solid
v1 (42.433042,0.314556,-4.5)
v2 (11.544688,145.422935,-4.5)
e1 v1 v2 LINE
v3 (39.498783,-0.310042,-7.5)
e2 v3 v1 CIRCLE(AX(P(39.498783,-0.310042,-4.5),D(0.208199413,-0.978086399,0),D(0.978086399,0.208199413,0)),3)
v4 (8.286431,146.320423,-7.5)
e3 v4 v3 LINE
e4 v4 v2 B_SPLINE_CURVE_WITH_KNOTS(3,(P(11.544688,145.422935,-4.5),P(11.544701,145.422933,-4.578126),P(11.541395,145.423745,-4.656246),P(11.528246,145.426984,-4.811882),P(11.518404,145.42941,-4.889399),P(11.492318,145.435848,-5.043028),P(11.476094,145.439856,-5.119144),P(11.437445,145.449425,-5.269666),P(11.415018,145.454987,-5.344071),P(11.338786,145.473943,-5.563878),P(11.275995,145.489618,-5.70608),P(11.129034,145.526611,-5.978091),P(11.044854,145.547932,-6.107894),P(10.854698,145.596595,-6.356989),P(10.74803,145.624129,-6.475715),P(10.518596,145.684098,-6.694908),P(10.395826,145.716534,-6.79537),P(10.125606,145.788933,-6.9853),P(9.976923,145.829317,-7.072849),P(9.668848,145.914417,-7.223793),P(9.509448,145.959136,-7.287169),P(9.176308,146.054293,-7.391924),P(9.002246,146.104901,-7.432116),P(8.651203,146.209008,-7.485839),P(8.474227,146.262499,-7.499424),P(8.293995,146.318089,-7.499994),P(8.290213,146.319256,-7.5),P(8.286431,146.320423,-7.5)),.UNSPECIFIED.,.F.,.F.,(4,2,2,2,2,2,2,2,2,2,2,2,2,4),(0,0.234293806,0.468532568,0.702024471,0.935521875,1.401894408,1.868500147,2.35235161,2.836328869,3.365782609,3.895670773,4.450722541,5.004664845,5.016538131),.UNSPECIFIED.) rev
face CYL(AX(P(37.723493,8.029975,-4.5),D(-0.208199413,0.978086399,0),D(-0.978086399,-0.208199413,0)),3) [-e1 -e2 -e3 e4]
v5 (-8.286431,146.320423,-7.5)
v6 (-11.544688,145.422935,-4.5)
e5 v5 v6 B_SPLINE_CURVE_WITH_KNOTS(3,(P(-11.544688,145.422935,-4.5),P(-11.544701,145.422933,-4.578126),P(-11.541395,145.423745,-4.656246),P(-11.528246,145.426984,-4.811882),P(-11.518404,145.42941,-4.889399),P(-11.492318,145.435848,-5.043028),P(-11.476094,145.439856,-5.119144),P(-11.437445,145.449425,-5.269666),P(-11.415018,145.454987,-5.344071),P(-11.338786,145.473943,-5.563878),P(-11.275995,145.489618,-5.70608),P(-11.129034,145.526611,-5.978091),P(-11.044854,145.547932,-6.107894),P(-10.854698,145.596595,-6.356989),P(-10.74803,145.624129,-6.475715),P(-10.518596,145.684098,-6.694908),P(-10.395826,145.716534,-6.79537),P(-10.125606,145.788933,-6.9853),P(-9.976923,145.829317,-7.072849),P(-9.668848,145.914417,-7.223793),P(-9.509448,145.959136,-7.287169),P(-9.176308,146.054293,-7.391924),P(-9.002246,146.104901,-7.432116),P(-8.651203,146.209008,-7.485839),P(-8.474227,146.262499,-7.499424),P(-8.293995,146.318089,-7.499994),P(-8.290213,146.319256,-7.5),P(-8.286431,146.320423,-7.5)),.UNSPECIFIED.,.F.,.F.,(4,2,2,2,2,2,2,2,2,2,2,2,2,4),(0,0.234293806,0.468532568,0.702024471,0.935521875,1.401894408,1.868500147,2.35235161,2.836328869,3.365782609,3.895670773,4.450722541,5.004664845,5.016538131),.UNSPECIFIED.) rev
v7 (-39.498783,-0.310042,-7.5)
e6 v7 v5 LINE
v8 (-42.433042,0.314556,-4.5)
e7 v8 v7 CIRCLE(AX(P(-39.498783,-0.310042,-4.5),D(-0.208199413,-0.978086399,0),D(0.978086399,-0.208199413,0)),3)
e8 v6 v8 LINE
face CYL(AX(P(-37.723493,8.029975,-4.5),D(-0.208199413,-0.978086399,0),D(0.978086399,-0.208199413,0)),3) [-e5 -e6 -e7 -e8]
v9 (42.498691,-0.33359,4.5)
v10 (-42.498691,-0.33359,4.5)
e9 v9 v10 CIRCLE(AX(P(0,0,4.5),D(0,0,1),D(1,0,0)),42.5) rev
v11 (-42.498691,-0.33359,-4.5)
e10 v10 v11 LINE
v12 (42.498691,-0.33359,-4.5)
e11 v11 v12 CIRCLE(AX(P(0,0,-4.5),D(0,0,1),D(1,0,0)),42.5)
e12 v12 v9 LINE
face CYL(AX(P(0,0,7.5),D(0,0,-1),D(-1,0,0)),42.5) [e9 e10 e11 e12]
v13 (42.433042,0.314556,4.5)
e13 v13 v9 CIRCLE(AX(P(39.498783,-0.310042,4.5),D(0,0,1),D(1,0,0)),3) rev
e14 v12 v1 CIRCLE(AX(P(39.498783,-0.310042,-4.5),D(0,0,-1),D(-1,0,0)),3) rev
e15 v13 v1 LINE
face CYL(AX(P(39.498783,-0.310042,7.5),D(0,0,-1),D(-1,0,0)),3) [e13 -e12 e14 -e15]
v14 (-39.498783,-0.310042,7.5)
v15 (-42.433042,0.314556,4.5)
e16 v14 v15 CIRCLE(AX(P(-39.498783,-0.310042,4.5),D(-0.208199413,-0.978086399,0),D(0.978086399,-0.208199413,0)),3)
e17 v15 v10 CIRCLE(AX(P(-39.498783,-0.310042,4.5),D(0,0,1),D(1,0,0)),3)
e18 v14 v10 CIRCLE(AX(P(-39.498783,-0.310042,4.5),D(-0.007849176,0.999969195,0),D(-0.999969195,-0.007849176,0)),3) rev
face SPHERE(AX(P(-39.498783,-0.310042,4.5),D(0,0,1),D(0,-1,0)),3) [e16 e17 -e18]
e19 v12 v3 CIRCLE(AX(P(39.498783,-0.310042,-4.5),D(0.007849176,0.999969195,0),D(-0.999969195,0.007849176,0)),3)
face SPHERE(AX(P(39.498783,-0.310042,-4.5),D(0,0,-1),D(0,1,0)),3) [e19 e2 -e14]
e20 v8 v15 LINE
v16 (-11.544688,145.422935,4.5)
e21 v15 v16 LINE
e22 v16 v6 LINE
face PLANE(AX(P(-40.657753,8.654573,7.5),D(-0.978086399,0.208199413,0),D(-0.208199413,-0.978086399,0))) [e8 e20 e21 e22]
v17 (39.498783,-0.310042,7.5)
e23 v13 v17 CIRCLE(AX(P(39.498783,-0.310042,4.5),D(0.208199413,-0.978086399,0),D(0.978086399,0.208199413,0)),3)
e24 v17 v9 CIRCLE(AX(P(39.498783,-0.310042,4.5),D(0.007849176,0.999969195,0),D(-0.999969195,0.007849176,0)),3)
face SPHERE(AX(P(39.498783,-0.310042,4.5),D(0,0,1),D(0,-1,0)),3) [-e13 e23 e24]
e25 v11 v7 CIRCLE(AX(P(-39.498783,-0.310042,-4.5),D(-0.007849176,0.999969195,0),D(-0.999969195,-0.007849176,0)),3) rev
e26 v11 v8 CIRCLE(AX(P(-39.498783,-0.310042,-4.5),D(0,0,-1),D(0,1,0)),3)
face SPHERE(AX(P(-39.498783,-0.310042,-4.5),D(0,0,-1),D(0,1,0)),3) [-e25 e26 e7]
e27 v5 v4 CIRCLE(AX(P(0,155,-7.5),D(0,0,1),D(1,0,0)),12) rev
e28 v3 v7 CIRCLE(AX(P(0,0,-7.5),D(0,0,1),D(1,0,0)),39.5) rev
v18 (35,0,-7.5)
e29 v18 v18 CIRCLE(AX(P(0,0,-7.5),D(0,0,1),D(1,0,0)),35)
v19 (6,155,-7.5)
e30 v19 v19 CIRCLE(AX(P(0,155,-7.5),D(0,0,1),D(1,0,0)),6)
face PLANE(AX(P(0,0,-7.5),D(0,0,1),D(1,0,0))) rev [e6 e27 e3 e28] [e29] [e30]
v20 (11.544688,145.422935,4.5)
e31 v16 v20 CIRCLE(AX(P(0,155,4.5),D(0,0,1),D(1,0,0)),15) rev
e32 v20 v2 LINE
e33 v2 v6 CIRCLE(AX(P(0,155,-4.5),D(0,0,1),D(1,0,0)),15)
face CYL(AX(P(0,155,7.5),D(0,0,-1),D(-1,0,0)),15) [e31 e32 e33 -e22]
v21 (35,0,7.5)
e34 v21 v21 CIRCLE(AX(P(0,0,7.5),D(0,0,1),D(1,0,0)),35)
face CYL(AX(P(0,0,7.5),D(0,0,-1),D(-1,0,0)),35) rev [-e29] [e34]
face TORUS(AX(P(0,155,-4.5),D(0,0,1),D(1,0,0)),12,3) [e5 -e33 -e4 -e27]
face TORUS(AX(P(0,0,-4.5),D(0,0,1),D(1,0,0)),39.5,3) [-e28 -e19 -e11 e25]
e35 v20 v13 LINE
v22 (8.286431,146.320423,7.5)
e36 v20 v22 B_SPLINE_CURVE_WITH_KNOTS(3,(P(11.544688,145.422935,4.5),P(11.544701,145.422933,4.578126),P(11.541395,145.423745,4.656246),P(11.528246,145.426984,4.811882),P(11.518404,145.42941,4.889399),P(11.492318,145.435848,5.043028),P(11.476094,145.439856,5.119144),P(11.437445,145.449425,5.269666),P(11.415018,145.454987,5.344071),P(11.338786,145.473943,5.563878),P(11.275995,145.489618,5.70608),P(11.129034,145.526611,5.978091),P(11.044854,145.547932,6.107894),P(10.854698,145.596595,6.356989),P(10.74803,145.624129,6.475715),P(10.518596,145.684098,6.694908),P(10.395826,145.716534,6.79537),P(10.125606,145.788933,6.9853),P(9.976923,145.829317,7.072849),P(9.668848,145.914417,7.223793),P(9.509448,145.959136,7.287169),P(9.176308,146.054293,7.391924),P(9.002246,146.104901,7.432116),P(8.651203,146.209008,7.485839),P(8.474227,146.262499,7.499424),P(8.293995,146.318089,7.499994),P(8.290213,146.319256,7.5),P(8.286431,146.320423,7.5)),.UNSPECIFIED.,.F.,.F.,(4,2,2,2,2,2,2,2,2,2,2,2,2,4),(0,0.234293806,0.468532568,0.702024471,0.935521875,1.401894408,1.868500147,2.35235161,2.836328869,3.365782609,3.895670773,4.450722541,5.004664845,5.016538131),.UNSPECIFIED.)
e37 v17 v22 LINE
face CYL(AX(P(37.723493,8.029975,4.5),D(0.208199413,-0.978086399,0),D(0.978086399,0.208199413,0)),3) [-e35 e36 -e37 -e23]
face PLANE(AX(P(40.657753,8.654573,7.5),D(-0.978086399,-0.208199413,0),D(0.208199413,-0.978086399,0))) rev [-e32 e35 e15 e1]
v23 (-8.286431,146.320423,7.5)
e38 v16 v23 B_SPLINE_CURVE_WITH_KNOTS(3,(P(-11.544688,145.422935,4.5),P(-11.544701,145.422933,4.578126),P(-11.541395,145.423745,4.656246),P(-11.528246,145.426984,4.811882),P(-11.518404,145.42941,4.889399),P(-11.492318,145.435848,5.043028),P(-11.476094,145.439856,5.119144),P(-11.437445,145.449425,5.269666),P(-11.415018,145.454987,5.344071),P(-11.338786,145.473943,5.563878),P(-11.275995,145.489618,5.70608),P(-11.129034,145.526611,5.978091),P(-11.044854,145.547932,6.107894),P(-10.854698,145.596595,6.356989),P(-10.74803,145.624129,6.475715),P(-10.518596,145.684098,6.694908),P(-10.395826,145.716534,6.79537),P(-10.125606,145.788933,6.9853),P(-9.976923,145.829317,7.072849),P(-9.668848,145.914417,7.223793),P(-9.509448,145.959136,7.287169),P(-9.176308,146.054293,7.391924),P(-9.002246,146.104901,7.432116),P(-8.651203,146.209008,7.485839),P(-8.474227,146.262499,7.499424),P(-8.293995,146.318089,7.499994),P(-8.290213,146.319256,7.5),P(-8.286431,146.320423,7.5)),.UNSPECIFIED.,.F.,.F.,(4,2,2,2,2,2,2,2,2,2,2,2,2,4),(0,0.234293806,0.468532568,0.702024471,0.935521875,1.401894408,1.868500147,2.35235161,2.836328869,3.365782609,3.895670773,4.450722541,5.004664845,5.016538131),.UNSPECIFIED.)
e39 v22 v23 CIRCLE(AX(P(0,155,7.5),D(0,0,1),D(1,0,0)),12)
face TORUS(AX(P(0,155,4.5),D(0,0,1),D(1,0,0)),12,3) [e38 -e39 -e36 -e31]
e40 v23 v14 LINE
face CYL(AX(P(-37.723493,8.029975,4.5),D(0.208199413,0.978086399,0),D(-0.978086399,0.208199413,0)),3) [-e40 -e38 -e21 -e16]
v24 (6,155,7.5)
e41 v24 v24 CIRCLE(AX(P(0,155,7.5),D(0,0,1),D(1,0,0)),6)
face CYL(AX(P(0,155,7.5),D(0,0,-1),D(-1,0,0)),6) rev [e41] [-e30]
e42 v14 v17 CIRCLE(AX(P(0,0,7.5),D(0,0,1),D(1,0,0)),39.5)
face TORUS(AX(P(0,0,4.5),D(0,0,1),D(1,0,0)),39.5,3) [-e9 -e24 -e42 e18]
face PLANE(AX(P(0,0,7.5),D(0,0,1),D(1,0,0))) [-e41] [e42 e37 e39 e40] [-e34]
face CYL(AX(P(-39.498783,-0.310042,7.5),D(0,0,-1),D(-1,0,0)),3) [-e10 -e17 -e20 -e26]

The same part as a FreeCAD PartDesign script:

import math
import FreeCAD as App
import Part
import Sketcher
Q = App.Units.Quantity


def edges_at(feature, points):
    """Names of the edges that pass closest to the given points."""
    edges = feature.Shape.Edges
    near = lambda p: min(range(len(edges)), key=lambda i: edges[i].distToShape(Part.Vertex(*p))[0])
    return sorted({f"Edge{near(p) + 1}" for p in points})

doc = App.newDocument("Part")
body = doc.addObject("PartDesign::Body", "Body")

sketch1 = body.newObject("Sketcher::SketchObject", "Sketch")
sketch1.AttachmentSupport = (doc.getObject("XY_Plane"), [""])
sketch1.MapMode = "FlatFace"
sketch1.addGeometry(Part.LineSegment(App.Vector(-12, 145, 0), App.Vector(-42, 0, 0)), False)
sketch1.addGeometry(Part.ArcOfCircle(Part.Circle(App.Vector(0, 0, 0), App.Vector(0, 0, 1), 42), math.radians(180), math.radians(360)), False)
sketch1.addGeometry(Part.LineSegment(App.Vector(42, 0, 0), App.Vector(12, 145, 0)), False)
sketch1.addGeometry(Part.ArcOfCircle(Part.Circle(App.Vector(0, 155, 0), App.Vector(0, 0, 1), 15), math.radians(-40), math.radians(220)), False)
sketch1.addGeometry(Part.Circle(App.Vector(0, 0, 0), App.Vector(0, 0, 1), 35), False)
sketch1.addGeometry(Part.Circle(App.Vector(0, 155, 0), App.Vector(0, 0, 1), 6), False)
sketch1.addConstraint(Sketcher.Constraint("Coincident", 0, 2, 1, 1))
sketch1.addConstraint(Sketcher.Constraint("Coincident", 1, 2, 2, 1))
sketch1.addConstraint(Sketcher.Constraint("Coincident", 2, 2, 3, 1))
sketch1.addConstraint(Sketcher.Constraint("Coincident", 3, 2, 0, 1))
sketch1.addConstraint(Sketcher.Constraint("Coincident", 1, 3, -1, 1))
sketch1.addConstraint(Sketcher.Constraint("Coincident", 4, 3, -1, 1))
sketch1.addConstraint(Sketcher.Constraint("Coincident", 5, 3, 3, 3))
sketch1.addConstraint(Sketcher.Constraint("Symmetric", 2, 2, 3, 2, -2))
sketch1.addConstraint(Sketcher.Constraint("PointOnObject", 0, 2, -1))
sketch1.addConstraint(Sketcher.Constraint("PointOnObject", 1, 2, -1))
sketch1.addConstraint(Sketcher.Constraint("Diameter", 4, Q("70 mm")))
sketch1.addConstraint(Sketcher.Constraint("Diameter", 5, Q("12 mm")))
sketch1.addConstraint(Sketcher.Constraint("Radius", 3, Q("15 mm")))
sketch1.addConstraint(Sketcher.Constraint("Radius", 1, Q("42.5 mm")))
sketch1.addConstraint(Sketcher.Constraint("DistanceY", -1, 1, 3, 3, Q("155 mm")))
sketch1.addConstraint(Sketcher.Constraint("Distance", 0, Q("148.681072 mm")))
pad1 = body.newObject("PartDesign::Pad", "Pad")
pad1.Profile = sketch1
pad1.Length = 15
pad1.Midplane = True
doc.recompute()

fillet = body.newObject("PartDesign::Fillet", "Fillet")
fillet.Base = (pad1, edges_at(pad1, [
    (42.5, 0, 0),
    (-42.5, 0, 0),
    (27.022, 72.711, 7.5),
    (0, 170, 7.5),
    (-27.022, 72.711, 7.5),
    (0, -42.5, 7.5),
    (0, -42.5, -7.5),
    (-27.022, 72.711, -7.5),
    (0, 170, -7.5),
    (27.022, 72.711, -7.5),
]))
fillet.Radius = 3

doc.recompute()
